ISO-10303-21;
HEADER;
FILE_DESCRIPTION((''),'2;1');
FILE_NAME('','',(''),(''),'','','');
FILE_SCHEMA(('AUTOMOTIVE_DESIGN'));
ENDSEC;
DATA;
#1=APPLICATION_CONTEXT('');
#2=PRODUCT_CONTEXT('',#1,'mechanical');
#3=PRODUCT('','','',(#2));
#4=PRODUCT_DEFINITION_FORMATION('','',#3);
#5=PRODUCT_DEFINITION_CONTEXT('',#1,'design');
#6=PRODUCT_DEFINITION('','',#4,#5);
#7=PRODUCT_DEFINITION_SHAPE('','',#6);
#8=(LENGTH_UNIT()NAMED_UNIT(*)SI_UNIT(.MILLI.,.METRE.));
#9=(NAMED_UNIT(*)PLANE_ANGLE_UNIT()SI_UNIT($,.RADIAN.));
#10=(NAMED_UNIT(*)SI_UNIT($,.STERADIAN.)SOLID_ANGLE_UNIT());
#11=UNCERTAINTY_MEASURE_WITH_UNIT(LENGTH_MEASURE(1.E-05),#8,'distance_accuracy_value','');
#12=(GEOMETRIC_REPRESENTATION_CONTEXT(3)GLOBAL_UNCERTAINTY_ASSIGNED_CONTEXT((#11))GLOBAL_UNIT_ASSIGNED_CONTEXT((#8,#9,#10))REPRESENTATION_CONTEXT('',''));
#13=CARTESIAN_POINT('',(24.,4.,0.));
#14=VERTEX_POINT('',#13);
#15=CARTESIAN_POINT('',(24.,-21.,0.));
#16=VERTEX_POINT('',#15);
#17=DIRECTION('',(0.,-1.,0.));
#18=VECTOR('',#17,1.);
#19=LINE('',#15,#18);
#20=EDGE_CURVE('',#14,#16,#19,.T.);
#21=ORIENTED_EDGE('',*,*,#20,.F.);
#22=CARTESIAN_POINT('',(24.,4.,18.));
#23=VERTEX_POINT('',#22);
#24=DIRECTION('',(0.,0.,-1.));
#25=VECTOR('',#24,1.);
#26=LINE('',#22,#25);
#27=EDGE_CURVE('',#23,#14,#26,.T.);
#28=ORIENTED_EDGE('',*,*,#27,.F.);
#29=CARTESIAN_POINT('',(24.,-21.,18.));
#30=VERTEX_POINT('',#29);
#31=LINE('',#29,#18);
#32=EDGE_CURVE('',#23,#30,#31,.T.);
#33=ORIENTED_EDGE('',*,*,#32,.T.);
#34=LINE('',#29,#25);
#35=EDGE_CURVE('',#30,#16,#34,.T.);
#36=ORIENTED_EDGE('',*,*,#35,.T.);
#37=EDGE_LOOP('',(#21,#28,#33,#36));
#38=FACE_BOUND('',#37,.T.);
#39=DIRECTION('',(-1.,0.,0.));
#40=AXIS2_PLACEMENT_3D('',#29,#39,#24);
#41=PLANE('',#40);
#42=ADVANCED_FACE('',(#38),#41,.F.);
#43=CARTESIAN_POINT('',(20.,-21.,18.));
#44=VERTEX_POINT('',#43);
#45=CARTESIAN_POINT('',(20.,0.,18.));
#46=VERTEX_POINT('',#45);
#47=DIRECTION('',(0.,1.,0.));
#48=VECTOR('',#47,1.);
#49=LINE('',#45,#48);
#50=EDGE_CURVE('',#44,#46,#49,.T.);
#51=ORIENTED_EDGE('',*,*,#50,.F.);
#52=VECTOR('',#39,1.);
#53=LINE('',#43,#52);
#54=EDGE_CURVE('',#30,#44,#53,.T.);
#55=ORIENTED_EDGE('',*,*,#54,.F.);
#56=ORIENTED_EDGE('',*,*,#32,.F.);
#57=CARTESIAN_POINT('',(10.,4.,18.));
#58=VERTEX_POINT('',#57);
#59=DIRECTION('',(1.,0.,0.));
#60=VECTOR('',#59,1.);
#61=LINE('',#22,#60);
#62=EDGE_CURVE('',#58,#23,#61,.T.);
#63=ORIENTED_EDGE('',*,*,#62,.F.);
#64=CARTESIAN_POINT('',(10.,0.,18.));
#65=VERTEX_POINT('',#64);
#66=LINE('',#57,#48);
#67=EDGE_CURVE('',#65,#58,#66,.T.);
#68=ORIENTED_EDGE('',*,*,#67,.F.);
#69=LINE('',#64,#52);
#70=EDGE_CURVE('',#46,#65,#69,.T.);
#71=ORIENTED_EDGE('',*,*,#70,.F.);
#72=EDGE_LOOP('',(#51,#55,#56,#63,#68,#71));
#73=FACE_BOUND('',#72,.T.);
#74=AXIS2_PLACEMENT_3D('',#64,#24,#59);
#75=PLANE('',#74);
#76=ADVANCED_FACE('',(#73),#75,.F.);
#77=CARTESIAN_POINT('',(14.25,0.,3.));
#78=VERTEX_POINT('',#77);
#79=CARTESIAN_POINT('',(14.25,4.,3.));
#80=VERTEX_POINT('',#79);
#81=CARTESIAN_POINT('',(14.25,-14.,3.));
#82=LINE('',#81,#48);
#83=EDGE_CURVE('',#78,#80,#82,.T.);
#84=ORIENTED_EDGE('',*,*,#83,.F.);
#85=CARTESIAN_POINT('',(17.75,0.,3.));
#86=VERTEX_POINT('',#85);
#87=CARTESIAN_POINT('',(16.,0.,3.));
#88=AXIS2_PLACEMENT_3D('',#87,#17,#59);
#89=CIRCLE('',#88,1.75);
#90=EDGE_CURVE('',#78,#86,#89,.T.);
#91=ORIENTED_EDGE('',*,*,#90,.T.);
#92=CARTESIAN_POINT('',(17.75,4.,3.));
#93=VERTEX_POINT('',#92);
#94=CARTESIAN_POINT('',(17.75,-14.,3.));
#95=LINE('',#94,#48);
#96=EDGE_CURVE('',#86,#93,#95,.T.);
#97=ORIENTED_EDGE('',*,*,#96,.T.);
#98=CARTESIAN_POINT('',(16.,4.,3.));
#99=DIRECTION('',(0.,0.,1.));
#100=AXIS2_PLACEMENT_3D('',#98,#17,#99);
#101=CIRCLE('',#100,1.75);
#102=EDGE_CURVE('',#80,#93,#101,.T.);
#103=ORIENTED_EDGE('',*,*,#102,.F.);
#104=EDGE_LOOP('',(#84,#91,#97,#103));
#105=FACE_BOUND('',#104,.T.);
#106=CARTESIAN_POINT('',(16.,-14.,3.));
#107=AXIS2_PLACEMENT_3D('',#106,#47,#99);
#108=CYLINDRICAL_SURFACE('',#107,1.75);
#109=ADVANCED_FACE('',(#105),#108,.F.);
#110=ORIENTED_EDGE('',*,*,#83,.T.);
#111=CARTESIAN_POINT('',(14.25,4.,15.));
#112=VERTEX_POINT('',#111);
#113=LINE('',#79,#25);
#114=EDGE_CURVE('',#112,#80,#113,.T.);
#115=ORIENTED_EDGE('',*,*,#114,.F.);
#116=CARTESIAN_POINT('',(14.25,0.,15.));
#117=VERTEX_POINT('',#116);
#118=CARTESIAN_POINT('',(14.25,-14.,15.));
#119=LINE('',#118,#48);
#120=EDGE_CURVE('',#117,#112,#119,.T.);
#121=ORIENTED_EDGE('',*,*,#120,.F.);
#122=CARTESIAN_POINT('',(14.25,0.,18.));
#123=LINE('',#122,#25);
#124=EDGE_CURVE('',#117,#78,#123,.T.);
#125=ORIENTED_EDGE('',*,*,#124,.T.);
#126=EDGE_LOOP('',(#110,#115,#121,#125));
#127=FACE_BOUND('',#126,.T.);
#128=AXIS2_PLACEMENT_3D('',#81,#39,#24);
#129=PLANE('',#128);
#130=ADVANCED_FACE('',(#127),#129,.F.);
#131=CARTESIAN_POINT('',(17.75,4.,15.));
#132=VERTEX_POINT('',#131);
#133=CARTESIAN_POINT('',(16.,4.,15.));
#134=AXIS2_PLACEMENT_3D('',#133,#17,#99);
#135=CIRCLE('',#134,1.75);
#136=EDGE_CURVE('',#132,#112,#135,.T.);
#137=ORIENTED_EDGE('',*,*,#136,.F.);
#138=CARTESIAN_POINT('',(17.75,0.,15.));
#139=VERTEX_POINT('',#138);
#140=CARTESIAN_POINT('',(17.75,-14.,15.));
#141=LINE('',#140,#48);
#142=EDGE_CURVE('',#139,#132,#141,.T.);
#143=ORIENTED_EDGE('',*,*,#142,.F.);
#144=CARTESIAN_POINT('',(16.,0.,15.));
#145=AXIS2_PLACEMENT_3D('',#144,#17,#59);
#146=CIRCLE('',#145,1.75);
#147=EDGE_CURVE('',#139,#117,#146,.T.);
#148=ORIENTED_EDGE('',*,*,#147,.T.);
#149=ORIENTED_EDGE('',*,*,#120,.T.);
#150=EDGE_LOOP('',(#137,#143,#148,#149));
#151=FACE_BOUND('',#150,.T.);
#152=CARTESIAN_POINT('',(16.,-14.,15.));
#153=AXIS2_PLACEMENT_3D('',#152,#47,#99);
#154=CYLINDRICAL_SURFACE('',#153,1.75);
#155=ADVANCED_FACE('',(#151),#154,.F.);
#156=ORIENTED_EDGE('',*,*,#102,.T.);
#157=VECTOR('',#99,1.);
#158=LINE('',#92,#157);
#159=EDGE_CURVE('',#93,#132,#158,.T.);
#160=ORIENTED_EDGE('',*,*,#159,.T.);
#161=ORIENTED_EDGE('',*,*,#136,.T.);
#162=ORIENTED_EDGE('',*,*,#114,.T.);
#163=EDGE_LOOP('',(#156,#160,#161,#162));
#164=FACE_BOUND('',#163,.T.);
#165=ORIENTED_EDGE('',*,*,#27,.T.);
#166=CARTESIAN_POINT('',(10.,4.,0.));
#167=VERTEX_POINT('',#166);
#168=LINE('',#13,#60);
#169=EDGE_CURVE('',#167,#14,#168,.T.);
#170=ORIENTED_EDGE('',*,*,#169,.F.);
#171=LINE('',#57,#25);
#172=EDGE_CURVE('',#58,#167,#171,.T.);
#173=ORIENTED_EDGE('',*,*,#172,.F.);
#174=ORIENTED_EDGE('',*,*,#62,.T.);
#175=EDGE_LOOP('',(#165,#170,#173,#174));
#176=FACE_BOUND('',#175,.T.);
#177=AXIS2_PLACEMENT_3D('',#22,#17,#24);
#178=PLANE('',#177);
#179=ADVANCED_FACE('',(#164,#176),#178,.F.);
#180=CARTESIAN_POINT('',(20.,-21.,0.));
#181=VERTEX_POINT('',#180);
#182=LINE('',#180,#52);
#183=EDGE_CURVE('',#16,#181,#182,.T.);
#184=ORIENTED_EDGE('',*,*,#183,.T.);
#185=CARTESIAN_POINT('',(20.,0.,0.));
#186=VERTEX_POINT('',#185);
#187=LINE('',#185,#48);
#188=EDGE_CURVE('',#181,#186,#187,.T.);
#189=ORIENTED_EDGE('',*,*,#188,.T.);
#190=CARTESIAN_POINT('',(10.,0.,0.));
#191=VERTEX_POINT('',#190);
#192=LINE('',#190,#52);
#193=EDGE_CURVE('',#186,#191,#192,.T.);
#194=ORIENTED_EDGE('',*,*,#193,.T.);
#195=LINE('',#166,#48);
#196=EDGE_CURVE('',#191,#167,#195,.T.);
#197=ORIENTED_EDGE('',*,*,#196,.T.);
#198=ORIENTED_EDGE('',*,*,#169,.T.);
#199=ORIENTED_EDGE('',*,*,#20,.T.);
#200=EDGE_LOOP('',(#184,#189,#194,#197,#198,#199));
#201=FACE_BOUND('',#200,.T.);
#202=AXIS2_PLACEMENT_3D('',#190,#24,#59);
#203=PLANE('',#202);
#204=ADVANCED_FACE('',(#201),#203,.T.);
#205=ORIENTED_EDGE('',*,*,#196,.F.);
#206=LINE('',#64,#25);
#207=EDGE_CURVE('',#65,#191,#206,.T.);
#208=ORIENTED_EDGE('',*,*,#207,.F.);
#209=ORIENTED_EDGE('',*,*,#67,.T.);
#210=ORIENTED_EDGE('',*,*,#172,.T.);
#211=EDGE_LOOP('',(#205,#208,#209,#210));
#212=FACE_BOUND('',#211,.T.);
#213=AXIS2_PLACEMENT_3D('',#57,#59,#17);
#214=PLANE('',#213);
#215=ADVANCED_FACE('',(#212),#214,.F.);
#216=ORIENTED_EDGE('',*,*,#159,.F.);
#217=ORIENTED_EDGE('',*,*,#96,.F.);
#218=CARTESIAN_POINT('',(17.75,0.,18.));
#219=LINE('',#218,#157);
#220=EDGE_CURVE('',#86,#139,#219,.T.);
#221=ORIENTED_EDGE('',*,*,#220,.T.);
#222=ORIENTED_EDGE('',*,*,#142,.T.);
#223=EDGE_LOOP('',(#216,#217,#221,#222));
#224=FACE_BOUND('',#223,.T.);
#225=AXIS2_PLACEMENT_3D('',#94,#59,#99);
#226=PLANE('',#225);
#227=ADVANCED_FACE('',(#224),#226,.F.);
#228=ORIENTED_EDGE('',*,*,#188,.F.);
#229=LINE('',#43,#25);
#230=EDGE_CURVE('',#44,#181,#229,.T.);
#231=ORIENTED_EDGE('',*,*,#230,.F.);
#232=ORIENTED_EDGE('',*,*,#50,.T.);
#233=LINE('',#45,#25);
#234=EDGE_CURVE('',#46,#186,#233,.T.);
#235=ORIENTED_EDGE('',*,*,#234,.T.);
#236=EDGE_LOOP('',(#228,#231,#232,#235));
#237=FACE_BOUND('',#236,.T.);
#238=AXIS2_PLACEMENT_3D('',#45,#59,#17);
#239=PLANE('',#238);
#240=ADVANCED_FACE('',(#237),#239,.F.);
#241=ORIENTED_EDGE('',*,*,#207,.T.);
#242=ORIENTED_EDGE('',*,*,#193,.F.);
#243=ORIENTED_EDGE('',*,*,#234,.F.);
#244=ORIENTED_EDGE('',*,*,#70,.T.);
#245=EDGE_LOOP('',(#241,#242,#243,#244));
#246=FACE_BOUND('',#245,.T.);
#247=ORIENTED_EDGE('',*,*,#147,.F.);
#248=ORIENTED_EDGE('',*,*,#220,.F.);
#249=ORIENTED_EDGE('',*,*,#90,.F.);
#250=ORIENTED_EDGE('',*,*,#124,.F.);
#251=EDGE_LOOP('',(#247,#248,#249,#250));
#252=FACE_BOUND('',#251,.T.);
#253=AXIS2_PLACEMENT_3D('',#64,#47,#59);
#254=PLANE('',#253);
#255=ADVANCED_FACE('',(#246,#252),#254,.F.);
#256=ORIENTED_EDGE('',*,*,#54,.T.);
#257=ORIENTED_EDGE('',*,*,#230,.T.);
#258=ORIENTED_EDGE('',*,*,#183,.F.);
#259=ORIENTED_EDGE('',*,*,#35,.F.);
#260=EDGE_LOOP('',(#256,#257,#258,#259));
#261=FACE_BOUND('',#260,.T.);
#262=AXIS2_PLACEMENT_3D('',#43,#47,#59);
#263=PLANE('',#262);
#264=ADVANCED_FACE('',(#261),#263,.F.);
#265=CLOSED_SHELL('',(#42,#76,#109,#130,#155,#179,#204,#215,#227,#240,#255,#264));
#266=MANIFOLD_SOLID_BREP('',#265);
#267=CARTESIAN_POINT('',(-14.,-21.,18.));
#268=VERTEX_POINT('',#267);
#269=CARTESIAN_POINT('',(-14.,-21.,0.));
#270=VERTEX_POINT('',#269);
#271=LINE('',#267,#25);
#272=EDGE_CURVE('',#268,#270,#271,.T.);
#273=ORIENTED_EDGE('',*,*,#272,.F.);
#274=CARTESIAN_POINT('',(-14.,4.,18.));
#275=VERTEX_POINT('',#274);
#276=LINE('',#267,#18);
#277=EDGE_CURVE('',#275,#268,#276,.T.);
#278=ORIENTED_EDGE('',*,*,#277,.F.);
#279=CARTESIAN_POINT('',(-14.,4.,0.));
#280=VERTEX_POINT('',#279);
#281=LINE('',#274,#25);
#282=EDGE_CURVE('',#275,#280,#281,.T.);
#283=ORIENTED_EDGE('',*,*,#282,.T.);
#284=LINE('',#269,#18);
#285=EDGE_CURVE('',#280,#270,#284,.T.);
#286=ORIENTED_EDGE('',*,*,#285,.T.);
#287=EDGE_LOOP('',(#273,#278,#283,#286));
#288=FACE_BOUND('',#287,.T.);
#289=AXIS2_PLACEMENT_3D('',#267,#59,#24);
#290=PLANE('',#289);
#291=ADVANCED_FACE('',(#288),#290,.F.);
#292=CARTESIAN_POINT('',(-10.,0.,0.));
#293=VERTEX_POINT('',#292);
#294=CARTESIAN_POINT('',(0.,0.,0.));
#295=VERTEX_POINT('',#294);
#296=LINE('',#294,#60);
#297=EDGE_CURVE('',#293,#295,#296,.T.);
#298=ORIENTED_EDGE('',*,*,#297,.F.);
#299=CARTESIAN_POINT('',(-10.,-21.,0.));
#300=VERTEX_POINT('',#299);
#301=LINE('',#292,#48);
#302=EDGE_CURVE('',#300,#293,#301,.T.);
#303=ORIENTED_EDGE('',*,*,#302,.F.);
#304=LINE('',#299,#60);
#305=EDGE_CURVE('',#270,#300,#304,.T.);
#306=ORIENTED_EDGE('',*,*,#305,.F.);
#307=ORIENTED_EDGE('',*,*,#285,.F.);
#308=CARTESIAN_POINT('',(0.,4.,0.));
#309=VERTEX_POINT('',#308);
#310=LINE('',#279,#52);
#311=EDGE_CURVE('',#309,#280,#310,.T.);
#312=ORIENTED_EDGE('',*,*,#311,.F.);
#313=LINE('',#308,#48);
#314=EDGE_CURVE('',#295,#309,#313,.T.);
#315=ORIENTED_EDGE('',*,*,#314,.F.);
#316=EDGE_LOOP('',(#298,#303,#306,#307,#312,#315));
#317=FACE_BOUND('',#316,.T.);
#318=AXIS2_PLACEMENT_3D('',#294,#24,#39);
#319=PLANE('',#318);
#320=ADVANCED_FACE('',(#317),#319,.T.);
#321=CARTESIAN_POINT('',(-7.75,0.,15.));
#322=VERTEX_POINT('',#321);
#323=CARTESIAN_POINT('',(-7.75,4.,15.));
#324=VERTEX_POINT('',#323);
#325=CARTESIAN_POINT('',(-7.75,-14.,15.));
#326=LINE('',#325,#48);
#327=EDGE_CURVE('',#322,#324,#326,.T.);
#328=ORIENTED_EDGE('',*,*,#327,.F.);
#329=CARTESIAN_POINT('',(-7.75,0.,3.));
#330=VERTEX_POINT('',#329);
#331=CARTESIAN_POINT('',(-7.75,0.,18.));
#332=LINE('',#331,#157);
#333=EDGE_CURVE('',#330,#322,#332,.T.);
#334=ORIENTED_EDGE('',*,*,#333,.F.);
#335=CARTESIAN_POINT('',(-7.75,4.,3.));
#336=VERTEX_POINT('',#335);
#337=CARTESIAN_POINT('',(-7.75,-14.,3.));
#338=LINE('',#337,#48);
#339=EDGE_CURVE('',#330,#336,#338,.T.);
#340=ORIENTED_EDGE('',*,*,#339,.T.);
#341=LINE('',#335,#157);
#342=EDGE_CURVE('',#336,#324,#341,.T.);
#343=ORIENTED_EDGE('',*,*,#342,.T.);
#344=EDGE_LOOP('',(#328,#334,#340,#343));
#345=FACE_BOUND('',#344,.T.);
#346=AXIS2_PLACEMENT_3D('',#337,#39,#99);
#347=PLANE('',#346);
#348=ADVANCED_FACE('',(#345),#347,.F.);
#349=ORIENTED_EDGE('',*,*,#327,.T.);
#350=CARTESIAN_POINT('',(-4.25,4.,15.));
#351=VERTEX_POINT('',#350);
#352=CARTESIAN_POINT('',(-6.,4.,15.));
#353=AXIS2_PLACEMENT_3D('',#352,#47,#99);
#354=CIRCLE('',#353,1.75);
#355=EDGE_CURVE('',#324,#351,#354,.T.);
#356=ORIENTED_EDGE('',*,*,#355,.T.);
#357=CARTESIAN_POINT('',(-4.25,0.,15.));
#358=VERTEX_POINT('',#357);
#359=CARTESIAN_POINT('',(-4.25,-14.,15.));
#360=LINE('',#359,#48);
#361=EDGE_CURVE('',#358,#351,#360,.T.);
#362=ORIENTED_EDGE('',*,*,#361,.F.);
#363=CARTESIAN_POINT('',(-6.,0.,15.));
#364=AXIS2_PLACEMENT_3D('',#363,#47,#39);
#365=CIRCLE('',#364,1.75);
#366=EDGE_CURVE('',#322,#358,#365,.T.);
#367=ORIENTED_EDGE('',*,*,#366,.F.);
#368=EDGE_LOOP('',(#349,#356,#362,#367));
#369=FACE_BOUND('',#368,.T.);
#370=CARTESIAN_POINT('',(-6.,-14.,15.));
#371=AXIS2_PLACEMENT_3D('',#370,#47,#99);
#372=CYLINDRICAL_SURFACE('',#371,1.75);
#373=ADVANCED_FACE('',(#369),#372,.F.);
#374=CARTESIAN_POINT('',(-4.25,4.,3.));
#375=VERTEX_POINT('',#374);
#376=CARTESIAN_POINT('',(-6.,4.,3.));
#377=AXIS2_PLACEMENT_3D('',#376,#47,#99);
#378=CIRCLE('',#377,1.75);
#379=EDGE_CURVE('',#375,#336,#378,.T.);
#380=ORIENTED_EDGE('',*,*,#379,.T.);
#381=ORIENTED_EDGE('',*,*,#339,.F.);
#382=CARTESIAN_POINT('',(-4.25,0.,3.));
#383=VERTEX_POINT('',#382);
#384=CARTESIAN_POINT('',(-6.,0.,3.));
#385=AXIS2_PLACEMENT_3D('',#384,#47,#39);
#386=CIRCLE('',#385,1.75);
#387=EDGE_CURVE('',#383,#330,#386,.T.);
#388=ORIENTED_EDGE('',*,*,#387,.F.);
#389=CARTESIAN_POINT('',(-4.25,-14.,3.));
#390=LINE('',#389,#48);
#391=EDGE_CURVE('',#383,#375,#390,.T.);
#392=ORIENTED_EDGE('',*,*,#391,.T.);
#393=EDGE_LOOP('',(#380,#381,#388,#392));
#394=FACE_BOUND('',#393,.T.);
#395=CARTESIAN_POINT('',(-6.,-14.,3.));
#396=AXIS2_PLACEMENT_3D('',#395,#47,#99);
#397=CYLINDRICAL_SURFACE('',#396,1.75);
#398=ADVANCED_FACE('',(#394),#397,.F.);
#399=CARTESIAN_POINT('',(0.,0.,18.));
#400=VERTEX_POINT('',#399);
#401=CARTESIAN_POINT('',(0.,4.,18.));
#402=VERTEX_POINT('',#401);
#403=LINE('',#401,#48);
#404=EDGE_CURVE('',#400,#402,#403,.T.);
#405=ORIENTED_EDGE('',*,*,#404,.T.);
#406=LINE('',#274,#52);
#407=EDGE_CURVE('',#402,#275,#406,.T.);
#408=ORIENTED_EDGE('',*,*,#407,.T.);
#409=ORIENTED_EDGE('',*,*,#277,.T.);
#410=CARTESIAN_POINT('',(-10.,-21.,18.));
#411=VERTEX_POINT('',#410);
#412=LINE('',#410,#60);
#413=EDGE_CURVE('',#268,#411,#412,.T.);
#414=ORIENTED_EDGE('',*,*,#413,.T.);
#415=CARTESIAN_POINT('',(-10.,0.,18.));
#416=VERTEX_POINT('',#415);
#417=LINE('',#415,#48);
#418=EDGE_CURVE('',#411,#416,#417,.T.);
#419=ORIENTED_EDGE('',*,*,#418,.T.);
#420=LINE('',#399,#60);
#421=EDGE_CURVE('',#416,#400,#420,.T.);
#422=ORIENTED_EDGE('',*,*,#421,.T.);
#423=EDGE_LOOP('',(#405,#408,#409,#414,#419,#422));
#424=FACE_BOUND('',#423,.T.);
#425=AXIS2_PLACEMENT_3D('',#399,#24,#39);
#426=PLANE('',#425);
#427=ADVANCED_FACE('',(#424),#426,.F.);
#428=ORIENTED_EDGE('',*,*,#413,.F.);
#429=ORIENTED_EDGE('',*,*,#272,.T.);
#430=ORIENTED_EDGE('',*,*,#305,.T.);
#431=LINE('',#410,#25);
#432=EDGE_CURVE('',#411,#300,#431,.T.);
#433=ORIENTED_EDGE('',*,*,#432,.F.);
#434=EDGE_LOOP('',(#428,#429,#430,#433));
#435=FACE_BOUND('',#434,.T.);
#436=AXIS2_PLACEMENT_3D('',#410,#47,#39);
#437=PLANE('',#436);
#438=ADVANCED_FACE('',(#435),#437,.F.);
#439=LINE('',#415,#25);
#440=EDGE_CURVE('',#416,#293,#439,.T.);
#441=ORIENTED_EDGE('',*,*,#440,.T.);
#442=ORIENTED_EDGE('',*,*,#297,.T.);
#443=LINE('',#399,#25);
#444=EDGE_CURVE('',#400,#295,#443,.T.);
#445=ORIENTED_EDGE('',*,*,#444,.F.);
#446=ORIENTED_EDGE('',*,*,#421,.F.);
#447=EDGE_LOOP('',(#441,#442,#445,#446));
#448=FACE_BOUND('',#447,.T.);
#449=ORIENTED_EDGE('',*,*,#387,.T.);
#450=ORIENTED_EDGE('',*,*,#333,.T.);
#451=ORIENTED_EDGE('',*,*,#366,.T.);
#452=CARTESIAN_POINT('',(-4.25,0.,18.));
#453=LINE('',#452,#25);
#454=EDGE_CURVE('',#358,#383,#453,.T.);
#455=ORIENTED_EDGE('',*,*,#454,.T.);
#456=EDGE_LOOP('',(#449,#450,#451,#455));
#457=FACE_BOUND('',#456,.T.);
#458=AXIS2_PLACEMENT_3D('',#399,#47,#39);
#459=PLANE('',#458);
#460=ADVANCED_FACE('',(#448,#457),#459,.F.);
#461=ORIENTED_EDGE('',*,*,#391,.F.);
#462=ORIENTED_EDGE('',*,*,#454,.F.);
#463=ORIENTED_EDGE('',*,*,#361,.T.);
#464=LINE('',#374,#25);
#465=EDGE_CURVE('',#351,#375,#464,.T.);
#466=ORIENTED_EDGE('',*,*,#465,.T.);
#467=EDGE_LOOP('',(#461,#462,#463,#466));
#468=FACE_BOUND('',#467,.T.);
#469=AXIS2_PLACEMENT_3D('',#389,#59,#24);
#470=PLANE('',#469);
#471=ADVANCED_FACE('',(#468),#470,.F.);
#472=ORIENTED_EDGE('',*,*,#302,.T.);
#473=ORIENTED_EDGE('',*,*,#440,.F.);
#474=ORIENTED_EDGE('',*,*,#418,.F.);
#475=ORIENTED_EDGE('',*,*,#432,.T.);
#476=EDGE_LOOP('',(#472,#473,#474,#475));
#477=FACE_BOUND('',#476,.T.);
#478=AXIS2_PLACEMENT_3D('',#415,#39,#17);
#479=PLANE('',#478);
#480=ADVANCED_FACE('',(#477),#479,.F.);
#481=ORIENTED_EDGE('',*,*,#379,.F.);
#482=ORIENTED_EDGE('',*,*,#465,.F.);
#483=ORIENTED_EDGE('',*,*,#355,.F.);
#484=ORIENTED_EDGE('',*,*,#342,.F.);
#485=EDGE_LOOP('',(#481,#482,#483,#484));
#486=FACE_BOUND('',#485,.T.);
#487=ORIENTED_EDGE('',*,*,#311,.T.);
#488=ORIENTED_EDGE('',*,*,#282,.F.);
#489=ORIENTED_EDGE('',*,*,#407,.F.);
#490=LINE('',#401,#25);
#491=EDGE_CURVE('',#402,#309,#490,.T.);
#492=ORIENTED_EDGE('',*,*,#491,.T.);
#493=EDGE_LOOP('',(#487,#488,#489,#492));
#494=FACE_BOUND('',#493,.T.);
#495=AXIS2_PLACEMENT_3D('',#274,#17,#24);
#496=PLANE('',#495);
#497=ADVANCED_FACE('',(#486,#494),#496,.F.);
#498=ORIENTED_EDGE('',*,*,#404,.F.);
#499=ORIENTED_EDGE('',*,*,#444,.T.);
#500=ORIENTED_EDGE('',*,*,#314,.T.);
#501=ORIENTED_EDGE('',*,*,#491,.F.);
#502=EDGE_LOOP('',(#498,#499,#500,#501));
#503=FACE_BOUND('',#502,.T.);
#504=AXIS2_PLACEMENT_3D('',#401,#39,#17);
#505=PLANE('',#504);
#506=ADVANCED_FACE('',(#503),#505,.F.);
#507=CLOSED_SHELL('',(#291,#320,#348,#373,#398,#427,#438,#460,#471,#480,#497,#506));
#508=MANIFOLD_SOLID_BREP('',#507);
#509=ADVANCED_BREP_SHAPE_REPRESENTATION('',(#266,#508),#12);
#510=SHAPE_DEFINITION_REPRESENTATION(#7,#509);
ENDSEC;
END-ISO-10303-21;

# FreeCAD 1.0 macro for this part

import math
import FreeCAD as App
import Part
import Sketcher
from FreeCAD import Vector


def add_polygon(sketch, points):
    """Adds a closed chain of lines whose ends are joined by coincident constraints."""
    first, n = sketch.GeometryCount, len(points)
    for a, b in zip(points, points[1:] + points[:1]):
        sketch.addGeometry(Part.LineSegment(App.Vector(*a, 0), App.Vector(*b, 0)), False)
    for i in range(n):
        sketch.addConstraint(Sketcher.Constraint("Coincident", first + i, 2, first + (i + 1) % n, 1))

doc = App.newDocument("Part")
body = doc.addObject("PartDesign::Body", "Body")

sketch1 = body.newObject("Sketcher::SketchObject", "Sketch")
sketch1.AttachmentSupport = (doc.getObject("XY_Plane"), [""])
sketch1.MapMode = "FlatFace"
add_polygon(sketch1, [(-10, 0), (0, 0), (0, 4), (-14, 4), (-14, -21), (-10, -21)])
sketch1.addConstraint(Sketcher.Constraint("Horizontal", 0))
sketch1.addConstraint(Sketcher.Constraint("Vertical", 1))
sketch1.addConstraint(Sketcher.Constraint("Horizontal", 2))
sketch1.addConstraint(Sketcher.Constraint("Vertical", 3))
sketch1.addConstraint(Sketcher.Constraint("Horizontal", 4))
sketch1.addConstraint(Sketcher.Constraint("Vertical", 5))
sketch1.addConstraint(Sketcher.Constraint("Coincident", 0, 2, -1, 1))
sketch1.addConstraint(Sketcher.Constraint("Equal", 4, 1))
sketch1.addConstraint(Sketcher.Constraint("DistanceX", 0, 1, 0, 2, 10.0))
sketch1.addConstraint(Sketcher.Constraint("DistanceX", 2, 2, 2, 1, 14.0))
sketch1.addConstraint(Sketcher.Constraint("DistanceY", 3, 2, 3, 1, 25.0))
pad1 = body.newObject("PartDesign::Pad", "Pad")
pad1.Profile = sketch1
pad1.Length = 18

sketch2 = body.newObject("Sketcher::SketchObject", "Sketch001")
sketch2.AttachmentSupport = (doc.getObject("XZ_Plane"), [""])
sketch2.MapMode = "FlatFace"
sketch2.AttachmentOffset = App.Placement(Vector(0, 0, -4), App.Rotation())
sketch2.addGeometry(Part.LineSegment(Vector(-4.25, 15, 0), Vector(-4.25, 3, 0)), False)
sketch2.addGeometry(Part.ArcOfCircle(Part.Circle(Vector(-6, 3, 0), Vector(0, 0, 1), 1.75), math.radians(180), math.radians(360)), False)
sketch2.addGeometry(Part.LineSegment(Vector(-7.75, 3, 0), Vector(-7.75, 15, 0)), False)
sketch2.addGeometry(Part.ArcOfCircle(Part.Circle(Vector(-6, 15, 0), Vector(0, 0, 1), 1.75), math.radians(0), math.radians(180)), False)
sketch2.addConstraint(Sketcher.Constraint("Tangent", 0, 2, 1, 2))
sketch2.addConstraint(Sketcher.Constraint("Tangent", 1, 1, 2, 1))
sketch2.addConstraint(Sketcher.Constraint("Tangent", 2, 2, 3, 2))
sketch2.addConstraint(Sketcher.Constraint("Tangent", 3, 1, 0, 1))
sketch2.addConstraint(Sketcher.Constraint("Vertical", 0))
sketch2.addConstraint(Sketcher.Constraint("Vertical", 2))
sketch2.addConstraint(Sketcher.Constraint("DistanceY", 0, 2, 0, 1, 12.0))
sketch2.addConstraint(Sketcher.Constraint("Radius", 1, 1.75))
sketch2.addConstraint(Sketcher.Constraint("DistanceX", 1, 3, -1, 1, 6.0))
sketch2.addConstraint(Sketcher.Constraint("DistanceY", -1, 1, 1, 3, 3.0))
pocket1 = body.newObject("PartDesign::Pocket", "Pocket")
pocket1.Profile = sketch2
pocket1.Length = 18
pocket1.Reversed = True
body2 = doc.addObject("PartDesign::Body", "Body001")
doc.recompute()

mirroring = doc.addObject("Part::Mirroring", "Mirroring")
mirroring.Source = body
mirroring.Base = Vector(5, 0, 0)
mirroring.Normal = Vector(1, 0, 0)
body2.BaseFeature = mirroring
doc.recompute()
mirroring.Visibility = False

doc.recompute()
